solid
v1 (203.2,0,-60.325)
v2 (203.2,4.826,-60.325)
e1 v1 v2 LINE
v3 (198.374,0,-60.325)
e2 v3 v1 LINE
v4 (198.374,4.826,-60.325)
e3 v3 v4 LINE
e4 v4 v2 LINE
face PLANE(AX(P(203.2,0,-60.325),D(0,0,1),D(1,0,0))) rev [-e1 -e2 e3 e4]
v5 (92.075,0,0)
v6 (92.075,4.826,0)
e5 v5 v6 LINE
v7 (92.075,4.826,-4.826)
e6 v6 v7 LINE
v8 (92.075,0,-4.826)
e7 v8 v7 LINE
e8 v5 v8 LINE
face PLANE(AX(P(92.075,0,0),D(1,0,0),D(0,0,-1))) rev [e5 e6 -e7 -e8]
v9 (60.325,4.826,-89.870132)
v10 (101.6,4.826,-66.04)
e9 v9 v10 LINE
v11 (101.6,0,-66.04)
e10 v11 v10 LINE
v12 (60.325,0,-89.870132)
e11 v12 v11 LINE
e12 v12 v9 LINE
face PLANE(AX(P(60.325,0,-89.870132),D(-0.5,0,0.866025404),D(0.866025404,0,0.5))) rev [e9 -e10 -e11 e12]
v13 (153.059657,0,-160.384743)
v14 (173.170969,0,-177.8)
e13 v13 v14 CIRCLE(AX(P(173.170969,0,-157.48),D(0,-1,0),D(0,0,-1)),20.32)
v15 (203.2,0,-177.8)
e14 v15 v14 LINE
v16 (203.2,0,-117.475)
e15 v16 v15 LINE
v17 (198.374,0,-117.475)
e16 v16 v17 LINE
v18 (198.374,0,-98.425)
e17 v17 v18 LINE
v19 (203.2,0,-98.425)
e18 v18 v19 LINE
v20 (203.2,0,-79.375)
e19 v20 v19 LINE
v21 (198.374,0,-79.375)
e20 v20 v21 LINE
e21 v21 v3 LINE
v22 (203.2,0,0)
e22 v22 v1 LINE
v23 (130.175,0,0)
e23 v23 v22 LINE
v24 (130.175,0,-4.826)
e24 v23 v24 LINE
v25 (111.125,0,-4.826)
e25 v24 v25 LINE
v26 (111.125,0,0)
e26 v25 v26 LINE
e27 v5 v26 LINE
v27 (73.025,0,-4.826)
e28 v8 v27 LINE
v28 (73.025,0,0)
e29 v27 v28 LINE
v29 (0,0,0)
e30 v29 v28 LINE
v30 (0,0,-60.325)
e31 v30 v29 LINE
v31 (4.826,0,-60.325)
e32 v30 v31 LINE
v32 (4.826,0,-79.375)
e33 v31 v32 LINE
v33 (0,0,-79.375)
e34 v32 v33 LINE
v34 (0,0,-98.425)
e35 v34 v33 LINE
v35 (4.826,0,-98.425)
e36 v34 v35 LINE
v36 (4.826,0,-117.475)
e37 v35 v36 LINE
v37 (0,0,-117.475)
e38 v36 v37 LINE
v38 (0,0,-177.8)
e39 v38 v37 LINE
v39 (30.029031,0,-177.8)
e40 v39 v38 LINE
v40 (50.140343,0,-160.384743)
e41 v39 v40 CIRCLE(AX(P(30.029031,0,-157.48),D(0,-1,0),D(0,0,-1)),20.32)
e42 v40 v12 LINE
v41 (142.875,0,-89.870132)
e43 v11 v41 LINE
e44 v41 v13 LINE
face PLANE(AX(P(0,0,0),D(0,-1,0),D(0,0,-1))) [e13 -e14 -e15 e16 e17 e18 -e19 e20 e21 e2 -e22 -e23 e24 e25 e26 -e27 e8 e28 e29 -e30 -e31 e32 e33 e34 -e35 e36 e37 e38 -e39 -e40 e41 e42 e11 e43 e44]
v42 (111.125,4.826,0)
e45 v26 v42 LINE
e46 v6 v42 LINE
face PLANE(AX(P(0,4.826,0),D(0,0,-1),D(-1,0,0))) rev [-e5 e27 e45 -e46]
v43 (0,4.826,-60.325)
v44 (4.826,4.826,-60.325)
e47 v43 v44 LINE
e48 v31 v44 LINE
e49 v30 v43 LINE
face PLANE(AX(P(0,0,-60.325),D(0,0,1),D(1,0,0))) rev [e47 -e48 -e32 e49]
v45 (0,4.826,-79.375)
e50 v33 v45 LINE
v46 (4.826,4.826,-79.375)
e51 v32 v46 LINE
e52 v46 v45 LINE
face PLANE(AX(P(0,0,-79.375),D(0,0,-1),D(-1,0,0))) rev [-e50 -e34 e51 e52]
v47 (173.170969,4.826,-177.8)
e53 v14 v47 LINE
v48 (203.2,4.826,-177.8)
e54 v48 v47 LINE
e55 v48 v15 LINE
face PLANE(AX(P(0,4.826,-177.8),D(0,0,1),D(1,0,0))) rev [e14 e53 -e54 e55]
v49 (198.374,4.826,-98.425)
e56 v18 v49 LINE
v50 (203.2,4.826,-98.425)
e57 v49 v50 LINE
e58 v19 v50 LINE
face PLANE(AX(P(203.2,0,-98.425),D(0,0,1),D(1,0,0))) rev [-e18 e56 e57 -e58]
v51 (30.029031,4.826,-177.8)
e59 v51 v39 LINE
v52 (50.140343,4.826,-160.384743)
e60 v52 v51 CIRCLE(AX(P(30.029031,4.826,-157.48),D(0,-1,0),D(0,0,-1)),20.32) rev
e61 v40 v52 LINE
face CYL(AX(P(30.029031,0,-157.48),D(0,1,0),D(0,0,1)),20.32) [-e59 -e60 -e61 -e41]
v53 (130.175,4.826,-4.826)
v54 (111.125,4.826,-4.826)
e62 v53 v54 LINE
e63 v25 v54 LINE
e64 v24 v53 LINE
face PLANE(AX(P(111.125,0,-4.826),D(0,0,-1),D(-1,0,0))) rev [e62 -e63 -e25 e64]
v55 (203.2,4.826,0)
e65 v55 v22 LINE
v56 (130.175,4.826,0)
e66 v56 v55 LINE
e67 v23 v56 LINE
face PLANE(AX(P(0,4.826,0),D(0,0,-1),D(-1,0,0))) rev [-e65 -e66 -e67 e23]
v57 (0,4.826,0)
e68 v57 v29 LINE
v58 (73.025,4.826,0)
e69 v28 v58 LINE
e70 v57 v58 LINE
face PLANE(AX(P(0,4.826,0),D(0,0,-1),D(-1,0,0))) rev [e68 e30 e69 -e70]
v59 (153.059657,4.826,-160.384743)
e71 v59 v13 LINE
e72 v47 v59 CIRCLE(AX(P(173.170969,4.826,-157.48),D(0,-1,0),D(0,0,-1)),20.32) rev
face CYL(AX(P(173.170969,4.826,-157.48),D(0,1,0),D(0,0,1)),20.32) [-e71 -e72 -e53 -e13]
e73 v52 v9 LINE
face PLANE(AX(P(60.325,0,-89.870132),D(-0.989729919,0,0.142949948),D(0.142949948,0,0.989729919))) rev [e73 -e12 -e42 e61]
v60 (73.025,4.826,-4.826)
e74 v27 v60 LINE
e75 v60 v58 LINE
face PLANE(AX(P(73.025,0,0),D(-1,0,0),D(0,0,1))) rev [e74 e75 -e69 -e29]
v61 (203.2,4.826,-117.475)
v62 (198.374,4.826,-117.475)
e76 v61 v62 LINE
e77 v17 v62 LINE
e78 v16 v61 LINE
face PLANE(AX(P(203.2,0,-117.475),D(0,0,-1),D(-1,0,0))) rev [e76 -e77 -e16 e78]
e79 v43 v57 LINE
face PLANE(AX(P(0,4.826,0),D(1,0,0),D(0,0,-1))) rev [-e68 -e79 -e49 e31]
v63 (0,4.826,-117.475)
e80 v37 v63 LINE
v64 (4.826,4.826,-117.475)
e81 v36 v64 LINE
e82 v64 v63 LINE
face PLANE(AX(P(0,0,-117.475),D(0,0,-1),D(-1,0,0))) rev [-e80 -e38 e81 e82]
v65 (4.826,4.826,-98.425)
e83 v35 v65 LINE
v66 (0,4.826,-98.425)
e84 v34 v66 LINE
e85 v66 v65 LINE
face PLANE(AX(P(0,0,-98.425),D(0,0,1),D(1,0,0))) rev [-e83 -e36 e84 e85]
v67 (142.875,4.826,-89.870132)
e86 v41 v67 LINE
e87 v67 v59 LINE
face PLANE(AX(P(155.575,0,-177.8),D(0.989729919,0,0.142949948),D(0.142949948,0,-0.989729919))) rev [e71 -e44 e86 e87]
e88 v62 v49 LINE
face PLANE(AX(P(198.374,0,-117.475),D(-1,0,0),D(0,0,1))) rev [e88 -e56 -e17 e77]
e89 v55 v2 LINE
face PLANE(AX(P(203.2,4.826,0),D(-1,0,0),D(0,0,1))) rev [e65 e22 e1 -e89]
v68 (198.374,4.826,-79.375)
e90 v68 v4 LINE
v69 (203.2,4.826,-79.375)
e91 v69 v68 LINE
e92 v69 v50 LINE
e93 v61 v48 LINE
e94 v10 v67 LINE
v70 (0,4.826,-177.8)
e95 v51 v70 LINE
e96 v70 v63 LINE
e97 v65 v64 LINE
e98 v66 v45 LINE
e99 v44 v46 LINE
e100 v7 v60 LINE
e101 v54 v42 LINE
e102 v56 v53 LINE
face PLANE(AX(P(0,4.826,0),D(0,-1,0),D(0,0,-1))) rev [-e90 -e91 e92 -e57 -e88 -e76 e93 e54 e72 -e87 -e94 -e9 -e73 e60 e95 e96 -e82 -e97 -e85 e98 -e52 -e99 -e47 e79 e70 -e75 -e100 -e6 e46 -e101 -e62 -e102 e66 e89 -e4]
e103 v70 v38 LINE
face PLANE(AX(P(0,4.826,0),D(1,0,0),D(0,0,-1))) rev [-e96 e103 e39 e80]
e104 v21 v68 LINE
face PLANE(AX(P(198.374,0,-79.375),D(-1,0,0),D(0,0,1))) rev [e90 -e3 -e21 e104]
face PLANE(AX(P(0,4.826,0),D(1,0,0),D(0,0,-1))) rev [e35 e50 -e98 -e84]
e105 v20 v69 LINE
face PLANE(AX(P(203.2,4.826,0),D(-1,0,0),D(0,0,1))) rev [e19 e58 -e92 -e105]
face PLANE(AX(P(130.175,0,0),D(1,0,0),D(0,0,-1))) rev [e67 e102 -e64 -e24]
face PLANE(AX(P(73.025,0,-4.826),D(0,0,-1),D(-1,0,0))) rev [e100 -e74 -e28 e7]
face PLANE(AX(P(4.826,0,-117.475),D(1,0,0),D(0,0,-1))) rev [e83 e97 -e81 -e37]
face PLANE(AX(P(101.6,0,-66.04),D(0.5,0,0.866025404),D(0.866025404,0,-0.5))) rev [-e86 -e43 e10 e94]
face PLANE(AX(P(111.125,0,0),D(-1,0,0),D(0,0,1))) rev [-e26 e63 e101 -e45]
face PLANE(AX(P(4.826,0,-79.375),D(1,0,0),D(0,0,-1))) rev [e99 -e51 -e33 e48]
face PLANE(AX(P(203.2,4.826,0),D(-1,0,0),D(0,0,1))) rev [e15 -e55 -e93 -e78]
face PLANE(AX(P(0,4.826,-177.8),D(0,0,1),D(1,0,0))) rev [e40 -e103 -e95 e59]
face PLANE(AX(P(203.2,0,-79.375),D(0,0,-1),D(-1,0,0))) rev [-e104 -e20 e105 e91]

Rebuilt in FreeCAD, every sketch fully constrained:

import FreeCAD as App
import Part
import Sketcher
Q = App.Units.Quantity


def edges_at(feature, points):
    """Names of the edges that pass closest to the given points."""
    edges = feature.Shape.Edges
    near = lambda p: min(range(len(edges)), key=lambda i: edges[i].distToShape(Part.Vertex(*p))[0])
    return sorted({f"Edge{near(p) + 1}" for p in points})

doc = App.newDocument("Part")
body = doc.addObject("PartDesign::Body", "Body")

sketch1 = doc.addObject("Sketcher::SketchObject", "Sketch")
body.addObject(sketch1)
sketch1.AttachmentSupport = (doc.XZ_Plane, [""])
sketch1.MapMode = "FlatFace"
sketch1.addGeometry(Part.LineSegment(App.Vector(0, -178, 0), App.Vector(0, 0, 0)), False)
sketch1.addGeometry(Part.LineSegment(App.Vector(0, 0, 0), App.Vector(203, 0, 0)), False)
sketch1.addGeometry(Part.LineSegment(App.Vector(203, 0, 0), App.Vector(203, -178, 0)), False)
sketch1.addGeometry(Part.LineSegment(App.Vector(203, -178, 0), App.Vector(0, -178, 0)), False)
sketch1.addConstraint(Sketcher.Constraint("Coincident", 0, 2, 1, 1))
sketch1.addConstraint(Sketcher.Constraint("Coincident", 1, 2, 2, 1))
sketch1.addConstraint(Sketcher.Constraint("Coincident", 2, 2, 3, 1))
sketch1.addConstraint(Sketcher.Constraint("Coincident", 3, 2, 0, 1))
sketch1.addConstraint(Sketcher.Constraint("Vertical", 0))
sketch1.addConstraint(Sketcher.Constraint("Horizontal", 1))
sketch1.addConstraint(Sketcher.Constraint("Vertical", 2))
sketch1.addConstraint(Sketcher.Constraint("Horizontal", 3))
sketch1.addConstraint(Sketcher.Constraint("Coincident", 0, 2, -1, 1))
sketch1.addConstraint(Sketcher.Constraint("DistanceX", 1, 1, 1, 2, Q("8 in")))
sketch1.addConstraint(Sketcher.Constraint("DistanceY", 0, 1, 0, 2, Q("7 in")))
pad1 = doc.addObject("PartDesign::Pad", "Pad")
body.addObject(pad1)
pad1.Profile = sketch1
pad1.Length = Q("0.19 in")
pad1.Reversed = True

sketch2 = doc.addObject("Sketcher::SketchObject", "Sketch001")
body.addObject(sketch2)
sketch2.AttachmentSupport = (doc.XZ_Plane, [""])
sketch2.MapMode = "FlatFace"
sketch2.AttachmentOffset = App.Placement(App.Vector(0, 0, -0.19 * 25.4), App.Rotation())
sketch2.addGeometry(Part.LineSegment(App.Vector(60, -90, 0), App.Vector(102, -66, 0)), False)
sketch2.addGeometry(Part.LineSegment(App.Vector(102, -66, 0), App.Vector(143, -90, 0)), False)
sketch2.addGeometry(Part.LineSegment(App.Vector(143, -90, 0), App.Vector(156, -178, 0)), False)
sketch2.addGeometry(Part.LineSegment(App.Vector(156, -178, 0), App.Vector(48, -178, 0)), False)
sketch2.addGeometry(Part.LineSegment(App.Vector(48, -178, 0), App.Vector(60, -90, 0)), False)
sketch2.addConstraint(Sketcher.Constraint("Coincident", 0, 2, 1, 1))
sketch2.addConstraint(Sketcher.Constraint("Coincident", 1, 2, 2, 1))
sketch2.addConstraint(Sketcher.Constraint("Coincident", 2, 2, 3, 1))
sketch2.addConstraint(Sketcher.Constraint("Coincident", 3, 2, 4, 1))
sketch2.addConstraint(Sketcher.Constraint("Coincident", 4, 2, 0, 1))
sketch2.addConstraint(Sketcher.Constraint("Horizontal", 3))
sketch2.addConstraint(Sketcher.Constraint("Horizontal", 1, 2, 4, 2))
sketch2.addConstraint(Sketcher.Constraint("Equal", 0, 1))
sketch2.addConstraint(Sketcher.Constraint("Equal", 2, 4))
sketch2.addConstraint(Sketcher.Constraint("DistanceX", -1, 1, 0, 2, Q("4 in")))
sketch2.addConstraint(Sketcher.Constraint("DistanceY", 2, 2, -1, 1, Q("7 in")))
sketch2.addConstraint(Sketcher.Constraint("Angle", 0, Q("30 deg")))
sketch2.addConstraint(Sketcher.Constraint("DistanceX", 3, 2, 3, 1, Q("4.25 in")))
sketch2.addConstraint(Sketcher.Constraint("DistanceY", 0, 2, -1, 1, Q("2.6 in")))
sketch2.addConstraint(Sketcher.Constraint("DistanceX", 1, 2, 2, 2, Q("0.5 in")))
pocket1 = doc.addObject("PartDesign::Pocket", "Pocket")
body.addObject(pocket1)
pocket1.Profile = sketch2
pocket1.Type = "ThroughAll"
pocket1.Reversed = True
doc.recompute()

fillet = doc.addObject("PartDesign::Fillet", "Fillet")
body.addObject(fillet)
fillet.Base = (pocket1, edges_at(pocket1, [(47.625, 2.413, -177.8), (155.575, 2.413, -177.8)]))
fillet.Radius = Q("0.8 in")

sketch3 = doc.addObject("Sketcher::SketchObject", "Sketch002")
body.addObject(sketch3)
sketch3.AttachmentSupport = (doc.XZ_Plane, [""])
sketch3.MapMode = "FlatFace"
sketch3.AttachmentOffset = App.Placement(App.Vector(0, 0, -0.19 * 25.4), App.Rotation())
sketch3.addGeometry(Part.LineSegment(App.Vector(0, -117.5, 0), App.Vector(0, -98.4, 0)), False)
sketch3.addGeometry(Part.LineSegment(App.Vector(0, -98.4, 0), App.Vector(4.8, -98.4, 0)), False)
sketch3.addGeometry(Part.LineSegment(App.Vector(4.8, -98.4, 0), App.Vector(4.8, -117.5, 0)), False)
sketch3.addGeometry(Part.LineSegment(App.Vector(4.8, -117.5, 0), App.Vector(0, -117.5, 0)), False)
sketch3.addGeometry(Part.LineSegment(App.Vector(0, -79.4, 0), App.Vector(0, -60.3, 0)), False)
sketch3.addGeometry(Part.LineSegment(App.Vector(0, -60.3, 0), App.Vector(4.8, -60.3, 0)), False)
sketch3.addGeometry(Part.LineSegment(App.Vector(4.8, -60.3, 0), App.Vector(4.8, -79.4, 0)), False)
sketch3.addGeometry(Part.LineSegment(App.Vector(4.8, -79.4, 0), App.Vector(0, -79.4, 0)), False)
sketch3.addGeometry(Part.LineSegment(App.Vector(198.4, -79.4, 0), App.Vector(198.4, -60.3, 0)), False)
sketch3.addGeometry(Part.LineSegment(App.Vector(198.4, -60.3, 0), App.Vector(203.2, -60.3, 0)), False)
sketch3.addGeometry(Part.LineSegment(App.Vector(203.2, -60.3, 0), App.Vector(203.2, -79.4, 0)), False)
sketch3.addGeometry(Part.LineSegment(App.Vector(203.2, -79.4, 0), App.Vector(198.4, -79.4, 0)), False)
sketch3.addGeometry(Part.LineSegment(App.Vector(198.4, -117.5, 0), App.Vector(198.4, -98.4, 0)), False)
sketch3.addGeometry(Part.LineSegment(App.Vector(198.4, -98.4, 0), App.Vector(203.2, -98.4, 0)), False)
sketch3.addGeometry(Part.LineSegment(App.Vector(203.2, -98.4, 0), App.Vector(203.2, -117.5, 0)), False)
sketch3.addGeometry(Part.LineSegment(App.Vector(203.2, -117.5, 0), App.Vector(198.4, -117.5, 0)), False)
sketch3.addConstraint(Sketcher.Constraint("Coincident", 0, 2, 1, 1))
sketch3.addConstraint(Sketcher.Constraint("Coincident", 1, 2, 2, 1))
sketch3.addConstraint(Sketcher.Constraint("Coincident", 2, 2, 3, 1))
sketch3.addConstraint(Sketcher.Constraint("Coincident", 3, 2, 0, 1))
sketch3.addConstraint(Sketcher.Constraint("Coincident", 4, 2, 5, 1))
sketch3.addConstraint(Sketcher.Constraint("Coincident", 5, 2, 6, 1))
sketch3.addConstraint(Sketcher.Constraint("Coincident", 6, 2, 7, 1))
sketch3.addConstraint(Sketcher.Constraint("Coincident", 7, 2, 4, 1))
sketch3.addConstraint(Sketcher.Constraint("Coincident", 8, 2, 9, 1))
sketch3.addConstraint(Sketcher.Constraint("Coincident", 9, 2, 10, 1))
sketch3.addConstraint(Sketcher.Constraint("Coincident", 10, 2, 11, 1))
sketch3.addConstraint(Sketcher.Constraint("Coincident", 11, 2, 8, 1))
sketch3.addConstraint(Sketcher.Constraint("Coincident", 12, 2, 13, 1))
sketch3.addConstraint(Sketcher.Constraint("Coincident", 13, 2, 14, 1))
sketch3.addConstraint(Sketcher.Constraint("Coincident", 14, 2, 15, 1))
sketch3.addConstraint(Sketcher.Constraint("Coincident", 15, 2, 12, 1))
sketch3.addConstraint(Sketcher.Constraint("Vertical", 0))
sketch3.addConstraint(Sketcher.Constraint("Horizontal", 1))
sketch3.addConstraint(Sketcher.Constraint("Vertical", 2))
sketch3.addConstraint(Sketcher.Constraint("Horizontal", 3))
sketch3.addConstraint(Sketcher.Constraint("Vertical", 4))
sketch3.addConstraint(Sketcher.Constraint("Horizontal", 5))
sketch3.addConstraint(Sketcher.Constraint("Vertical", 6))
sketch3.addConstraint(Sketcher.Constraint("Horizontal", 7))
sketch3.addConstraint(Sketcher.Constraint("Vertical", 8))
sketch3.addConstraint(Sketcher.Constraint("Horizontal", 9))
sketch3.addConstraint(Sketcher.Constraint("Vertical", 10))
sketch3.addConstraint(Sketcher.Constraint("Horizontal", 11))
sketch3.addConstraint(Sketcher.Constraint("Vertical", 12))
sketch3.addConstraint(Sketcher.Constraint("Horizontal", 13))
sketch3.addConstraint(Sketcher.Constraint("Vertical", 14))
sketch3.addConstraint(Sketcher.Constraint("Horizontal", 15))
sketch3.addConstraint(Sketcher.Constraint("PointOnObject", 0, 2, -2))
sketch3.addConstraint(Sketcher.Constraint("PointOnObject", 4, 2, -2))
sketch3.addConstraint(Sketcher.Constraint("Horizontal", 5, 2, 8, 2))
sketch3.addConstraint(Sketcher.Constraint("Horizontal", 7, 2, 10, 2))
sketch3.addConstraint(Sketcher.Constraint("Horizontal", 1, 2, 12, 2))
sketch3.addConstraint(Sketcher.Constraint("Horizontal", 3, 2, 14, 2))
sketch3.addConstraint(Sketcher.Constraint("Vertical", 2, 2, 5, 2))
sketch3.addConstraint(Sketcher.Constraint("Vertical", 11, 2, 12, 2))
sketch3.addConstraint(Sketcher.Constraint("Vertical", 10, 2, 13, 2))
sketch3.addConstraint(Sketcher.Constraint("Equal", 7, 9))
sketch3.addConstraint(Sketcher.Constraint("Equal", 2, 4))
sketch3.addConstraint(Sketcher.Constraint("DistanceX", -1, 1, 9, 2, Q("8 in")))
sketch3.addConstraint(Sketcher.Constraint("DistanceX", 1, 1, 1, 2, Q("0.19 in")))
sketch3.addConstraint(Sketcher.Constraint("DistanceY", 0, 1, 0, 2, Q("0.75 in")))
sketch3.addConstraint(Sketcher.Constraint("DistanceY", 0, 2, 4, 2, Q("1.5 in")))
sketch3.addConstraint(Sketcher.Constraint("DistanceY", 0, 2, -1, 1, Q("3.875 in")))
pocket2 = doc.addObject("PartDesign::Pocket", "Pocket001")
body.addObject(pocket2)
pocket2.Profile = sketch3
pocket2.Type = "ThroughAll"
pocket2.Reversed = True

sketch4 = doc.addObject("Sketcher::SketchObject", "Sketch003")
body.addObject(sketch4)
sketch4.AttachmentSupport = (doc.XZ_Plane, [""])
sketch4.MapMode = "FlatFace"
sketch4.AttachmentOffset = App.Placement(App.Vector(0, 0, -0.19 * 25.4), App.Rotation())
sketch4.addGeometry(Part.LineSegment(App.Vector(73, -4.8, 0), App.Vector(73, 0, 0)), False)
sketch4.addGeometry(Part.LineSegment(App.Vector(73, 0, 0), App.Vector(92.1, 0, 0)), False)
sketch4.addGeometry(Part.LineSegment(App.Vector(92.1, 0, 0), App.Vector(92.1, -4.8, 0)), False)
sketch4.addGeometry(Part.LineSegment(App.Vector(92.1, -4.8, 0), App.Vector(73, -4.8, 0)), False)
sketch4.addGeometry(Part.LineSegment(App.Vector(111.1, -4.8, 0), App.Vector(111.1, 0, 0)), False)
sketch4.addGeometry(Part.LineSegment(App.Vector(111.1, 0, 0), App.Vector(130.2, 0, 0)), False)
sketch4.addGeometry(Part.LineSegment(App.Vector(130.2, 0, 0), App.Vector(130.2, -4.8, 0)), False)
sketch4.addGeometry(Part.LineSegment(App.Vector(130.2, -4.8, 0), App.Vector(111.1, -4.8, 0)), False)
sketch4.addConstraint(Sketcher.Constraint("Coincident", 0, 2, 1, 1))
sketch4.addConstraint(Sketcher.Constraint("Coincident", 1, 2, 2, 1))
sketch4.addConstraint(Sketcher.Constraint("Coincident", 2, 2, 3, 1))
sketch4.addConstraint(Sketcher.Constraint("Coincident", 3, 2, 0, 1))
sketch4.addConstraint(Sketcher.Constraint("Coincident", 4, 2, 5, 1))
sketch4.addConstraint(Sketcher.Constraint("Coincident", 5, 2, 6, 1))
sketch4.addConstraint(Sketcher.Constraint("Coincident", 6, 2, 7, 1))
sketch4.addConstraint(Sketcher.Constraint("Coincident", 7, 2, 4, 1))
sketch4.addConstraint(Sketcher.Constraint("Vertical", 0))
sketch4.addConstraint(Sketcher.Constraint("Horizontal", 1))
sketch4.addConstraint(Sketcher.Constraint("Vertical", 2))
sketch4.addConstraint(Sketcher.Constraint("Horizontal", 3))
sketch4.addConstraint(Sketcher.Constraint("Vertical", 4))
sketch4.addConstraint(Sketcher.Constraint("Horizontal", 5))
sketch4.addConstraint(Sketcher.Constraint("Vertical", 6))
sketch4.addConstraint(Sketcher.Constraint("Horizontal", 7))
sketch4.addConstraint(Sketcher.Constraint("PointOnObject", 0, 2, -1))
sketch4.addConstraint(Sketcher.Constraint("PointOnObject", 4, 2, -1))
sketch4.addConstraint(Sketcher.Constraint("Horizontal", 3, 2, 6, 2))
sketch4.addConstraint(Sketcher.Constraint("Equal", 3, 5))
sketch4.addConstraint(Sketcher.Constraint("DistanceX", 1, 1, 1, 2, Q("0.75 in")))
sketch4.addConstraint(Sketcher.Constraint("DistanceY", 0, 1, 0, 2, Q("0.19 in")))
sketch4.addConstraint(Sketcher.Constraint("DistanceX", 0, 2, 4, 2, Q("1.5 in")))
sketch4.addConstraint(Sketcher.Constraint("DistanceX", -1, 1, 0, 2, Q("2.875 in")))
pocket3 = doc.addObject("PartDesign::Pocket", "Pocket002")
body.addObject(pocket3)
pocket3.Profile = sketch4
pocket3.Type = "ThroughAll"
pocket3.Reversed = True

doc.recompute()
